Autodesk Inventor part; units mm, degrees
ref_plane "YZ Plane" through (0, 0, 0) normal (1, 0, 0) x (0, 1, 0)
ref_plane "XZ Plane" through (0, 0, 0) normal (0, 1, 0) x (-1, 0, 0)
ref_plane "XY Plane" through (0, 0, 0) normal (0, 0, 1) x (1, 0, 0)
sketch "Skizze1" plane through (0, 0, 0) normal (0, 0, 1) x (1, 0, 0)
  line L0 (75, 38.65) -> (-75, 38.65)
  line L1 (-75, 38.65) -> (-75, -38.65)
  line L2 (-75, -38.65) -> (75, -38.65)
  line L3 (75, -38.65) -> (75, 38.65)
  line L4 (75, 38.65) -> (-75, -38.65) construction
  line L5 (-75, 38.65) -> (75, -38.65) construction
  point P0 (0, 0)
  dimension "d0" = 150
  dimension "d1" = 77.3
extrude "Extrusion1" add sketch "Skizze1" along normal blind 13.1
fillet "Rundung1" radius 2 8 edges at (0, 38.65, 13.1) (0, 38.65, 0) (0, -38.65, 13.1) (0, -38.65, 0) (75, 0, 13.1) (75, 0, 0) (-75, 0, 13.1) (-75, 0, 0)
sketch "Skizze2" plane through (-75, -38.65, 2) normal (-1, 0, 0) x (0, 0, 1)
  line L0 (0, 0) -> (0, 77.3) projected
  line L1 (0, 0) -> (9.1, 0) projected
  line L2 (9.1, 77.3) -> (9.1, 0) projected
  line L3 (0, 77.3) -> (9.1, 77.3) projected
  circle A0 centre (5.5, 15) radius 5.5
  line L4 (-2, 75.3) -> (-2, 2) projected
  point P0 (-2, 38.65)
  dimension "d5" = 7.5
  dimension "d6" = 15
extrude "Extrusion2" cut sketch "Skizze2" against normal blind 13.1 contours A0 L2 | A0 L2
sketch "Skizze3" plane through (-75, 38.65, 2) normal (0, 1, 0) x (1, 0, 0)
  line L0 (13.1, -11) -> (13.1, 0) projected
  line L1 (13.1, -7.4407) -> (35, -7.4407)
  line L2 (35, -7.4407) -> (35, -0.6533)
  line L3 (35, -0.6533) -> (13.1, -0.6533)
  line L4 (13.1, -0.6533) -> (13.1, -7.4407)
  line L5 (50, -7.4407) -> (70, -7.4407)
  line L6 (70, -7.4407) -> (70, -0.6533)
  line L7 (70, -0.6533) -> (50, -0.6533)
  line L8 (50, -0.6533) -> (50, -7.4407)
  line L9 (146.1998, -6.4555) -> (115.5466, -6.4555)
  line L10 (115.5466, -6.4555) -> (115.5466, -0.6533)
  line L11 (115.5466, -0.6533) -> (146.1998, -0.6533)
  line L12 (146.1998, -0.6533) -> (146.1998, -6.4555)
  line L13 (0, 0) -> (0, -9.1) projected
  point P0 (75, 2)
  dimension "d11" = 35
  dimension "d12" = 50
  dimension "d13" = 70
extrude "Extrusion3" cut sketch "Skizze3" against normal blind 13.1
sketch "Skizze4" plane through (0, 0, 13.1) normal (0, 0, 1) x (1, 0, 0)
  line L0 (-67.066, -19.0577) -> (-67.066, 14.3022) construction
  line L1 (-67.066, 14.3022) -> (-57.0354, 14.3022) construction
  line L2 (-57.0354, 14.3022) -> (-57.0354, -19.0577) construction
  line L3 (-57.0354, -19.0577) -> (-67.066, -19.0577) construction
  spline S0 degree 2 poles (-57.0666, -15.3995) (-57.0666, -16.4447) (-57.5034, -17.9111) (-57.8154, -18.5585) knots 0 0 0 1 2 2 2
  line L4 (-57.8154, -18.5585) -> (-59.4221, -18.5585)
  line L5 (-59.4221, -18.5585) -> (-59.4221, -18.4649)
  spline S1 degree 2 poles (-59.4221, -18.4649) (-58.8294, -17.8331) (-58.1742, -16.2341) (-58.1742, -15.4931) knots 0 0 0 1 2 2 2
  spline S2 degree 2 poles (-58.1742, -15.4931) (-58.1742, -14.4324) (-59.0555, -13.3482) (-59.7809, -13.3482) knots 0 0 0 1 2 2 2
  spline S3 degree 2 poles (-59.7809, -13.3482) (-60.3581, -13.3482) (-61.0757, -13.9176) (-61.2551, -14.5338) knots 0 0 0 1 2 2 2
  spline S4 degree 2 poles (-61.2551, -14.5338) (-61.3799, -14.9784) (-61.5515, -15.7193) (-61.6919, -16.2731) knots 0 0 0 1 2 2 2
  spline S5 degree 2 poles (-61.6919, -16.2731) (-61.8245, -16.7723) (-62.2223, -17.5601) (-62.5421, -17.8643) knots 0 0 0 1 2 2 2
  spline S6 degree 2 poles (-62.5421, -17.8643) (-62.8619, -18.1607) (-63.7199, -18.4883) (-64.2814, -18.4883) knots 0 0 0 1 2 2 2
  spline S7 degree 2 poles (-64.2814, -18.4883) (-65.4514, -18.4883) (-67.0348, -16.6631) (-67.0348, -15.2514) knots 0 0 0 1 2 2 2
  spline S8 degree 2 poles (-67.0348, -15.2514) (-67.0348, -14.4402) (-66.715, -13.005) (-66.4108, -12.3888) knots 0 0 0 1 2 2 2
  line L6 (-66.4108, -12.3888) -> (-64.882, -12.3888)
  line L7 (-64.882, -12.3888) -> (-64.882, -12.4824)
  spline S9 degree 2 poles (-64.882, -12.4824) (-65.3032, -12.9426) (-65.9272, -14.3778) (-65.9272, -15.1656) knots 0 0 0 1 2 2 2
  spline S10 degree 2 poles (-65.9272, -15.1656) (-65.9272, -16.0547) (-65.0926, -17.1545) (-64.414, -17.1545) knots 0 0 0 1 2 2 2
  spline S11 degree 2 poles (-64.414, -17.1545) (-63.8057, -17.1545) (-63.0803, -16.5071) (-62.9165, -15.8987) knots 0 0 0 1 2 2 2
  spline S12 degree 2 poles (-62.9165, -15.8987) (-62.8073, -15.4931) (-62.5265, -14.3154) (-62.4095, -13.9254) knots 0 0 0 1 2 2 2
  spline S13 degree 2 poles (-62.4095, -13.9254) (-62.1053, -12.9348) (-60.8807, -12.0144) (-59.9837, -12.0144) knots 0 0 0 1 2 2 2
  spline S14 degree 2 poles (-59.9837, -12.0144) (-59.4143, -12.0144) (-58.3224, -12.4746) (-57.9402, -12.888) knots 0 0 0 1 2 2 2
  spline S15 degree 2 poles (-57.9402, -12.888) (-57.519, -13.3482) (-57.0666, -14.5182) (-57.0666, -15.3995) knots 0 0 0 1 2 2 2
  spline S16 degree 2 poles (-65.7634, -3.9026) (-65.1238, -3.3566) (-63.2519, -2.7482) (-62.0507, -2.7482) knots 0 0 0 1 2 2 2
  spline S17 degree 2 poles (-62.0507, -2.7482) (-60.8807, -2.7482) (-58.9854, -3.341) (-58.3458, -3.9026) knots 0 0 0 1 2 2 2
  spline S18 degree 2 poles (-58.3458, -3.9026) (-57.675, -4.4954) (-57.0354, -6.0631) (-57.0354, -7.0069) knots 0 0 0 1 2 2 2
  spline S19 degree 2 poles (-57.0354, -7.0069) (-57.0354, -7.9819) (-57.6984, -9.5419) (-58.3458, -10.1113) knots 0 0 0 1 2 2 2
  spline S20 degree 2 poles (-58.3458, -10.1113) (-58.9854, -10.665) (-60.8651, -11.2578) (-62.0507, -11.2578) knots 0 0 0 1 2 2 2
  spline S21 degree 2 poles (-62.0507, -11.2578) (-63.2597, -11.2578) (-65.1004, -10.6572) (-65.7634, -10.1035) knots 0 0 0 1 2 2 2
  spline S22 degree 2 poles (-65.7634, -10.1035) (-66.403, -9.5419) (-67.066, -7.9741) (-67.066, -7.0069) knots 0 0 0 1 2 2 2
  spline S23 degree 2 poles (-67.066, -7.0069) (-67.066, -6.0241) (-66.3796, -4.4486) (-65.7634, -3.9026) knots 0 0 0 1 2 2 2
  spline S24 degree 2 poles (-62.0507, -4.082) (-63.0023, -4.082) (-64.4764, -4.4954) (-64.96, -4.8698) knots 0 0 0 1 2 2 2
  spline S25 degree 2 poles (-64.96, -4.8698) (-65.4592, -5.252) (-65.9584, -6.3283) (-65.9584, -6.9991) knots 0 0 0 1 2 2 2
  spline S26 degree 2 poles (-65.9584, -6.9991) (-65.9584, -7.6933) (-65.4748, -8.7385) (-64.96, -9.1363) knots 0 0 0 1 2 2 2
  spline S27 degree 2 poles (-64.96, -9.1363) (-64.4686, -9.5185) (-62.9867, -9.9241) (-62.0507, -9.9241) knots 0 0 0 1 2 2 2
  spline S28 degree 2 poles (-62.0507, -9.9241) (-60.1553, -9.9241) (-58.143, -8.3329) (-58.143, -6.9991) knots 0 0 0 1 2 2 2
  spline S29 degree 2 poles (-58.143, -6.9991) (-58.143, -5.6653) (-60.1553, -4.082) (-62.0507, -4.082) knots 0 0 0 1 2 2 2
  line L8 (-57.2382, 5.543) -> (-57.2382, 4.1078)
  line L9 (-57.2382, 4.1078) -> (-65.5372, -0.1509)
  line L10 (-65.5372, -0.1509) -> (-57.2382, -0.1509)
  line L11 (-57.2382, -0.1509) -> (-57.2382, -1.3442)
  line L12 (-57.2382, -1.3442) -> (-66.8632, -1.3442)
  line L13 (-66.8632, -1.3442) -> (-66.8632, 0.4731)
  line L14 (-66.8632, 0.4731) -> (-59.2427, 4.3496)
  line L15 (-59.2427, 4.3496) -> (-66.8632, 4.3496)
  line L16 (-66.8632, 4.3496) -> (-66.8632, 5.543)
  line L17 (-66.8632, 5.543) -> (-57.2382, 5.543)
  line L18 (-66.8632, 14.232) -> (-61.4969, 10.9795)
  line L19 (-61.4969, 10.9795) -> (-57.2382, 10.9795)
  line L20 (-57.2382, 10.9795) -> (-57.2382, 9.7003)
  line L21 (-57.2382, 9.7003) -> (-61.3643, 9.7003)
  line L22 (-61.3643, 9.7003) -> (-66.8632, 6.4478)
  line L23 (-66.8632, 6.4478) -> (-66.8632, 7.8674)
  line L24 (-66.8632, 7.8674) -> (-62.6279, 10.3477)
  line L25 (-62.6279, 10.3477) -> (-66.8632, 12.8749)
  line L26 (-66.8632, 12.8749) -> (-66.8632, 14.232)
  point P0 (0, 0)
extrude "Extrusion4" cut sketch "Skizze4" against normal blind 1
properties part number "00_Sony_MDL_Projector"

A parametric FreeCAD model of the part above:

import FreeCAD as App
import Part
import Sketcher

V = App.Vector
Q = App.Units.Quantity


def edges_at(feature, points):
    """Names of the edges that pass closest to the given points."""
    edges = feature.Shape.Edges
    near = lambda p: min(range(len(edges)), key=lambda i: edges[i].distToShape(Part.Vertex(*p))[0])
    return sorted({f"Edge{near(p) + 1}" for p in points})

doc = App.newDocument("Part")
params = doc.addObject("Spreadsheet::Sheet", "Params")
for row, (alias, value) in enumerate([
    ("sketch1_width", "150 mm"),
    ("sketch1_height", "77.3 mm"),
    ("pad1_length", "13.1 mm"),
    ("fillet_radius", "2 mm"),
    ("sketch2_diameter", "11 mm"),
    ("pocket1_length", "13.1 mm"),
    ("sketch3_width", "20 mm"),
    ("sketch3_width2", "21.9 mm"),
    ("pocket2_length", "13.1 mm"),
    ("pocket3_length", "1 mm"),
], start=1):
    params.set(f"A{row}", alias)
    params.set(f"B{row}", "=" + value)
    params.setAlias(f"B{row}", alias)

body = doc.addObject("PartDesign::Body", "Body")

sketch1 = body.newObject("Sketcher::SketchObject", "Sketch")
sketch1.AttachmentSupport = (doc.getObject("XY_Plane"), [""])
sketch1.MapMode = "FlatFace"
sketch1.addGeometry([
    Part.LineSegment(V(75, -39, 0), V(75, 39, 0)),
    Part.LineSegment(V(75, 39, 0), V(-75, 39, 0)),
    Part.LineSegment(V(-75, 39, 0), V(-75, -39, 0)),
    Part.LineSegment(V(-75, -39, 0), V(75, -39, 0)),
], False)
sketch1.addConstraint([
    Sketcher.Constraint("Coincident", 0, 2, 1, 1),
    Sketcher.Constraint("Coincident", 1, 2, 2, 1),
    Sketcher.Constraint("Coincident", 2, 2, 3, 1),
    Sketcher.Constraint("Coincident", 3, 2, 0, 1),
    Sketcher.Constraint("Vertical", 0),
    Sketcher.Constraint("Horizontal", 1),
    Sketcher.Constraint("Vertical", 2),
    Sketcher.Constraint("Horizontal", 3),
    Sketcher.Constraint("Symmetric", 0, 2, 2, 2, -1, 1),
    Sketcher.Constraint("DistanceX", 1, 2, 1, 1, 150.0),
    Sketcher.Constraint("DistanceY", 0, 1, 0, 2, 77.3),
])
sketch1.setExpression("Constraints[9]", "Params.sketch1_width")
sketch1.setExpression("Constraints[10]", "Params.sketch1_height")
pad1 = body.newObject("PartDesign::Pad", "Pad")
pad1.Profile = sketch1
pad1.setExpression("Length", "Params.pad1_length")
doc.recompute()

fillet = body.newObject("PartDesign::Fillet", "Fillet")
fillet.Base = (pad1, edges_at(pad1, [
    (0, 38.65, 13.1),
    (0, 38.65, 0),
    (0, -38.65, 13.1),
    (0, -38.65, 0),
    (75, 0, 13.1),
    (75, 0, 0),
    (-75, 0, 13.1),
    (-75, 0, 0),
]))
fillet.setExpression("Radius", "Params.fillet_radius")

sketch2 = body.newObject("Sketcher::SketchObject", "Sketch001")
sketch2.AttachmentSupport = (doc.getObject("YZ_Plane"), [""])
sketch2.MapMode = "FlatFace"
sketch2.AttachmentOffset = App.Placement(V(0, 0, -75), App.Rotation())
sketch2.addGeometry(Part.Circle(V(-24, 8, 0), V(0, 0, 1), 6), False)
sketch2.addConstraint([
    Sketcher.Constraint("Diameter", 0, 11.0),
    Sketcher.Constraint("DistanceY", -1, 1, 0, 3, 7.5),
    Sketcher.Constraint("DistanceX", 0, 3, -1, 1, 23.65),
])
sketch2.setExpression("Constraints[0]", "Params.sketch2_diameter")
pocket1 = body.newObject("PartDesign::Pocket", "Pocket")
pocket1.Profile = sketch2
pocket1.setExpression("Length", "Params.pocket1_length")
pocket1.Reversed = True

sketch3 = body.newObject("Sketcher::SketchObject", "Sketch002")
sketch3.AttachmentSupport = (doc.getObject("XZ_Plane"), [""])
sketch3.MapMode = "FlatFace"
sketch3.AttachmentOffset = App.Placement(V(0, 0, -38.65), App.Rotation())
sketch3.addGeometry([
    Part.LineSegment(V(-62, 3, 0), V(-62, 9, 0)),
    Part.LineSegment(V(-62, 9, 0), V(-40, 9, 0)),
    Part.LineSegment(V(-40, 9, 0), V(-40, 3, 0)),
    Part.LineSegment(V(-40, 3, 0), V(-62, 3, 0)),
    Part.LineSegment(V(-25, 3, 0), V(-25, 9, 0)),
    Part.LineSegment(V(-25, 9, 0), V(-5, 9, 0)),
    Part.LineSegment(V(-5, 9, 0), V(-5, 3, 0)),
    Part.LineSegment(V(-5, 3, 0), V(-25, 3, 0)),
    Part.LineSegment(V(41, 8, 0), V(71, 8, 0)),
    Part.LineSegment(V(71, 8, 0), V(71, 3, 0)),
    Part.LineSegment(V(71, 3, 0), V(41, 3, 0)),
    Part.LineSegment(V(41, 3, 0), V(41, 8, 0)),
], False)
sketch3.addConstraint([
    Sketcher.Constraint("Coincident", 0, 2, 1, 1),
    Sketcher.Constraint("Coincident", 1, 2, 2, 1),
    Sketcher.Constraint("Coincident", 2, 2, 3, 1),
    Sketcher.Constraint("Coincident", 3, 2, 0, 1),
    Sketcher.Constraint("Coincident", 4, 2, 5, 1),
    Sketcher.Constraint("Coincident", 5, 2, 6, 1),
    Sketcher.Constraint("Coincident", 6, 2, 7, 1),
    Sketcher.Constraint("Coincident", 7, 2, 4, 1),
    Sketcher.Constraint("Coincident", 8, 2, 9, 1),
    Sketcher.Constraint("Coincident", 9, 2, 10, 1),
    Sketcher.Constraint("Coincident", 10, 2, 11, 1),
    Sketcher.Constraint("Coincident", 11, 2, 8, 1),
    Sketcher.Constraint("Vertical", 0),
    Sketcher.Constraint("Horizontal", 1),
    Sketcher.Constraint("Vertical", 2),
    Sketcher.Constraint("Horizontal", 3),
    Sketcher.Constraint("Vertical", 4),
    Sketcher.Constraint("Horizontal", 5),
    Sketcher.Constraint("Vertical", 6),
    Sketcher.Constraint("Horizontal", 7),
    Sketcher.Constraint("Horizontal", 8),
    Sketcher.Constraint("Vertical", 9),
    Sketcher.Constraint("Horizontal", 10),
    Sketcher.Constraint("Vertical", 11),
    Sketcher.Constraint("Horizontal", 1, 2, 4, 2),
    Sketcher.Constraint("Horizontal", 3, 2, 6, 2),
    Sketcher.Constraint("Horizontal", 7, 2, 9, 2),
    Sketcher.Constraint("DistanceX", 1, 2, 5, 2, 35.0),
    Sketcher.Constraint("DistanceX", 5, 1, 5, 2, 20.0),
    Sketcher.Constraint("DistanceX", 1, 1, 1, 2, 21.9),
    Sketcher.Constraint("DistanceX", 1, 2, -1, 1, 40.0),
    Sketcher.Constraint("DistanceX", 8, 1, 8, 2, 30.6532),
    Sketcher.Constraint("DistanceY", 0, 1, 0, 2, 6.7874),
    Sketcher.Constraint("DistanceY", 9, 2, 9, 1, 5.8022),
    Sketcher.Constraint("DistanceY", -1, 1, 0, 2, 9.4407),
    Sketcher.Constraint("DistanceX", -1, 1, 8, 2, 71.1998),
])
sketch3.setExpression("Constraints[28]", "Params.sketch3_width")
sketch3.setExpression("Constraints[29]", "Params.sketch3_width2")
pocket2 = body.newObject("PartDesign::Pocket", "Pocket001")
pocket2.Profile = sketch3
pocket2.setExpression("Length", "Params.pocket2_length")
pocket2.Reversed = True

sketch4 = body.newObject("Sketcher::SketchObject", "Sketch003")
sketch4.AttachmentSupport = (doc.getObject("XY_Plane"), [""])
sketch4.MapMode = "FlatFace"
sketch4.AttachmentOffset = App.Placement(V(0, 0, 13.1), App.Rotation())
sketch4.addGeometry([
    Part.BSplineCurve([V(-57.0666, -15.3995, 0), V(-57.0666, -16.4447, 0), V(-57.5034, -17.9111, 0), V(-57.8154, -18.5585, 0)], [3, 1, 3], [0, 1, 2], False, 2, [1, 1, 1, 1], False),
    Part.BSplineCurve([V(-57.9402, -12.888, 0), V(-57.519, -13.3482, 0), V(-57.0666, -14.5182, 0), V(-57.0666, -15.3995, 0)], [3, 1, 3], [0, 1, 2], False, 2, [1, 1, 1, 1], False),
    Part.BSplineCurve([V(-59.9837, -12.0144, 0), V(-59.4143, -12.0144, 0), V(-58.3224, -12.4746, 0), V(-57.9402, -12.888, 0)], [3, 1, 3], [0, 1, 2], False, 2, [1, 1, 1, 1], False),
    Part.BSplineCurve([V(-62.4095, -13.9254, 0), V(-62.1053, -12.9348, 0), V(-60.8807, -12.0144, 0), V(-59.9837, -12.0144, 0)], [3, 1, 3], [0, 1, 2], False, 2, [1, 1, 1, 1], False),
    Part.BSplineCurve([V(-62.9165, -15.8987, 0), V(-62.8073, -15.4931, 0), V(-62.5265, -14.3154, 0), V(-62.4095, -13.9254, 0)], [3, 1, 3], [0, 1, 2], False, 2, [1, 1, 1, 1], False),
    Part.BSplineCurve([V(-64.414, -17.1545, 0), V(-63.8057, -17.1545, 0), V(-63.0803, -16.5071, 0), V(-62.9165, -15.8987, 0)], [3, 1, 3], [0, 1, 2], False, 2, [1, 1, 1, 1], False),
    Part.BSplineCurve([V(-65.9272, -15.1656, 0), V(-65.9272, -16.0547, 0), V(-65.0926, -17.1545, 0), V(-64.414, -17.1545, 0)], [3, 1, 3], [0, 1, 2], False, 2, [1, 1, 1, 1], False),
    Part.BSplineCurve([V(-64.882, -12.4824, 0), V(-65.3032, -12.9426, 0), V(-65.9272, -14.3778, 0), V(-65.9272, -15.1656, 0)], [3, 1, 3], [0, 1, 2], False, 2, [1, 1, 1, 1], False),
    Part.LineSegment(V(-64.882, -12.4824, 0), V(-64.882, -12.3888, 0)),
    Part.LineSegment(V(-64.882, -12.3888, 0), V(-66.4108, -12.3888, 0)),
    Part.BSplineCurve([V(-67.0348, -15.2514, 0), V(-67.0348, -14.4402, 0), V(-66.715, -13.005, 0), V(-66.4108, -12.3888, 0)], [3, 1, 3], [0, 1, 2], False, 2, [1, 1, 1, 1], False),
    Part.BSplineCurve([V(-64.2814, -18.4883, 0), V(-65.4514, -18.4883, 0), V(-67.0348, -16.6631, 0), V(-67.0348, -15.2514, 0)], [3, 1, 3], [0, 1, 2], False, 2, [1, 1, 1, 1], False),
    Part.BSplineCurve([V(-62.5421, -17.8643, 0), V(-62.8619, -18.1607, 0), V(-63.7199, -18.4883, 0), V(-64.2814, -18.4883, 0)], [3, 1, 3], [0, 1, 2], False, 2, [1, 1, 1, 1], False),
    Part.BSplineCurve([V(-61.6919, -16.2731, 0), V(-61.8245, -16.7723, 0), V(-62.2223, -17.5601, 0), V(-62.5421, -17.8643, 0)], [3, 1, 3], [0, 1, 2], False, 2, [1, 1, 1, 1], False),
    Part.BSplineCurve([V(-61.2551, -14.5338, 0), V(-61.3799, -14.9784, 0), V(-61.5515, -15.7193, 0), V(-61.6919, -16.2731, 0)], [3, 1, 3], [0, 1, 2], False, 2, [1, 1, 1, 1], False),
    Part.BSplineCurve([V(-59.7809, -13.3482, 0), V(-60.3581, -13.3482, 0), V(-61.0757, -13.9176, 0), V(-61.2551, -14.5338, 0)], [3, 1, 3], [0, 1, 2], False, 2, [1, 1, 1, 1], False),
    Part.BSplineCurve([V(-58.1742, -15.4931, 0), V(-58.1742, -14.4324, 0), V(-59.0555, -13.3482, 0), V(-59.7809, -13.3482, 0)], [3, 1, 3], [0, 1, 2], False, 2, [1, 1, 1, 1], False),
    Part.BSplineCurve([V(-59.4221, -18.4649, 0), V(-58.8294, -17.8331, 0), V(-58.1742, -16.2341, 0), V(-58.1742, -15.4931, 0)], [3, 1, 3], [0, 1, 2], False, 2, [1, 1, 1, 1], False),
    Part.LineSegment(V(-59.4221, -18.4649, 0), V(-59.4221, -18.5585, 0)),
    Part.LineSegment(V(-59.4221, -18.5585, 0), V(-57.8154, -18.5585, 0)),
    Part.BSplineCurve([V(-65.7634, -3.9026, 0), V(-65.1238, -3.3566, 0), V(-63.2519, -2.7482, 0), V(-62.0507, -2.7482, 0)], [3, 1, 3], [0, 1, 2], False, 2, [1, 1, 1, 1], False),
    Part.BSplineCurve([V(-67.066, -7.0069, 0), V(-67.066, -6.0241, 0), V(-66.3796, -4.4486, 0), V(-65.7634, -3.9026, 0)], [3, 1, 3], [0, 1, 2], False, 2, [1, 1, 1, 1], False),
    Part.BSplineCurve([V(-65.7634, -10.1035, 0), V(-66.403, -9.5419, 0), V(-67.066, -7.9741, 0), V(-67.066, -7.0069, 0)], [3, 1, 3], [0, 1, 2], False, 2, [1, 1, 1, 1], False),
    Part.BSplineCurve([V(-62.0507, -11.2578, 0), V(-63.2597, -11.2578, 0), V(-65.1004, -10.6572, 0), V(-65.7634, -10.1035, 0)], [3, 1, 3], [0, 1, 2], False, 2, [1, 1, 1, 1], False),
    Part.BSplineCurve([V(-58.3458, -10.1113, 0), V(-58.9854, -10.665, 0), V(-60.8651, -11.2578, 0), V(-62.0507, -11.2578, 0)], [3, 1, 3], [0, 1, 2], False, 2, [1, 1, 1, 1], False),
    Part.BSplineCurve([V(-57.0354, -7.0069, 0), V(-57.0354, -7.9819, 0), V(-57.6984, -9.5419, 0), V(-58.3458, -10.1113, 0)], [3, 1, 3], [0, 1, 2], False, 2, [1, 1, 1, 1], False),
    Part.BSplineCurve([V(-58.3458, -3.9026, 0), V(-57.675, -4.4954, 0), V(-57.0354, -6.0631, 0), V(-57.0354, -7.0069, 0)], [3, 1, 3], [0, 1, 2], False, 2, [1, 1, 1, 1], False),
    Part.BSplineCurve([V(-62.0507, -2.7482, 0), V(-60.8807, -2.7482, 0), V(-58.9854, -3.341, 0), V(-58.3458, -3.9026, 0)], [3, 1, 3], [0, 1, 2], False, 2, [1, 1, 1, 1], False),
    Part.BSplineCurve([V(-62.0507, -4.082, 0), V(-63.0023, -4.082, 0), V(-64.4764, -4.4954, 0), V(-64.96, -4.8698, 0)], [3, 1, 3], [0, 1, 2], False, 2, [1, 1, 1, 1], False),
    Part.BSplineCurve([V(-58.143, -6.9991, 0), V(-58.143, -5.6653, 0), V(-60.1553, -4.082, 0), V(-62.0507, -4.082, 0)], [3, 1, 3], [0, 1, 2], False, 2, [1, 1, 1, 1], False),
    Part.BSplineCurve([V(-62.0507, -9.9241, 0), V(-60.1553, -9.9241, 0), V(-58.143, -8.3329, 0), V(-58.143, -6.9991, 0)], [3, 1, 3], [0, 1, 2], False, 2, [1, 1, 1, 1], False),
    Part.BSplineCurve([V(-64.96, -9.1363, 0), V(-64.4686, -9.5185, 0), V(-62.9867, -9.9241, 0), V(-62.0507, -9.9241, 0)], [3, 1, 3], [0, 1, 2], False, 2, [1, 1, 1, 1], False),
    Part.BSplineCurve([V(-65.9584, -6.9991, 0), V(-65.9584, -7.6933, 0), V(-65.4748, -8.7385, 0), V(-64.96, -9.1363, 0)], [3, 1, 3], [0, 1, 2], False, 2, [1, 1, 1, 1], False),
    Part.BSplineCurve([V(-64.96, -4.8698, 0), V(-65.4592, -5.252, 0), V(-65.9584, -6.3283, 0), V(-65.9584, -6.9991, 0)], [3, 1, 3], [0, 1, 2], False, 2, [1, 1, 1, 1], False),
    Part.LineSegment(V(-57.2382, 4.1078, 0), V(-57.2382, 5.543, 0)),
    Part.LineSegment(V(-57.2382, 5.543, 0), V(-66.8632, 5.543, 0)),
    Part.LineSegment(V(-66.8632, 5.543, 0), V(-66.8632, 4.3496, 0)),
    Part.LineSegment(V(-66.8632, 4.3496, 0), V(-59.2427, 4.3496, 0)),
    Part.LineSegment(V(-59.2427, 4.3496, 0), V(-66.8632, 0.4731, 0)),
    Part.LineSegment(V(-66.8632, 0.4731, 0), V(-66.8632, -1.3442, 0)),
    Part.LineSegment(V(-66.8632, -1.3442, 0), V(-57.2382, -1.3442, 0)),
    Part.LineSegment(V(-57.2382, -1.3442, 0), V(-57.2382, -0.1509, 0)),
    Part.LineSegment(V(-57.2382, -0.1509, 0), V(-65.5372, -0.1509, 0)),
    Part.LineSegment(V(-65.5372, -0.1509, 0), V(-57.2382, 4.1078, 0)),
    Part.LineSegment(V(-61.4969, 10.9795, 0), V(-66.8632, 14.232, 0)),
    Part.LineSegment(V(-66.8632, 14.232, 0), V(-66.8632, 12.8749, 0)),
    Part.LineSegment(V(-66.8632, 12.8749, 0), V(-62.6279, 10.3477, 0)),
    Part.LineSegment(V(-62.6279, 10.3477, 0), V(-66.8632, 7.8674, 0)),
    Part.LineSegment(V(-66.8632, 7.8674, 0), V(-66.8632, 6.4478, 0)),
    Part.LineSegment(V(-66.8632, 6.4478, 0), V(-61.3643, 9.7003, 0)),
    Part.LineSegment(V(-61.3643, 9.7003, 0), V(-57.2382, 9.7003, 0)),
    Part.LineSegment(V(-57.2382, 9.7003, 0), V(-57.2382, 10.9795, 0)),
    Part.LineSegment(V(-57.2382, 10.9795, 0), V(-61.4969, 10.9795, 0)),
], False)
sketch4.addConstraint([
    Sketcher.Constraint("Block", 0),
    Sketcher.Constraint("Block", 1),
    Sketcher.Constraint("Block", 2),
    Sketcher.Constraint("Block", 3),
    Sketcher.Constraint("Block", 4),
    Sketcher.Constraint("Block", 5),
    Sketcher.Constraint("Block", 6),
    Sketcher.Constraint("Block", 7),
    Sketcher.Constraint("Block", 10),
    Sketcher.Constraint("Block", 11),
    Sketcher.Constraint("Block", 12),
    Sketcher.Constraint("Block", 13),
    Sketcher.Constraint("Block", 14),
    Sketcher.Constraint("Block", 15),
    Sketcher.Constraint("Block", 16),
    Sketcher.Constraint("Block", 17),
    Sketcher.Constraint("Block", 20),
    Sketcher.Constraint("Block", 21),
    Sketcher.Constraint("Block", 22),
    Sketcher.Constraint("Block", 23),
    Sketcher.Constraint("Block", 24),
    Sketcher.Constraint("Block", 25),
    Sketcher.Constraint("Block", 26),
    Sketcher.Constraint("Block", 27),
    Sketcher.Constraint("Block", 28),
    Sketcher.Constraint("Block", 29),
    Sketcher.Constraint("Block", 30),
    Sketcher.Constraint("Block", 31),
    Sketcher.Constraint("Block", 32),
    Sketcher.Constraint("Block", 33),
    Sketcher.Constraint("Coincident", 7, 1, 8, 1),
    Sketcher.Constraint("Coincident", 8, 2, 9, 1),
    Sketcher.Constraint("Coincident", 9, 2, 10, 2),
    Sketcher.Constraint("Coincident", 17, 1, 18, 1),
    Sketcher.Constraint("Coincident", 18, 2, 19, 1),
    Sketcher.Constraint("Coincident", 19, 2, 0, 2),
    Sketcher.Constraint("Coincident", 34, 2, 35, 1),
    Sketcher.Constraint("Coincident", 35, 2, 36, 1),
    Sketcher.Constraint("Coincident", 36, 2, 37, 1),
    Sketcher.Constraint("Coincident", 37, 2, 38, 1),
    Sketcher.Constraint("Coincident", 38, 2, 39, 1),
    Sketcher.Constraint("Coincident", 39, 2, 40, 1),
    Sketcher.Constraint("Coincident", 40, 2, 41, 1),
    Sketcher.Constraint("Coincident", 41, 2, 42, 1),
    Sketcher.Constraint("Coincident", 42, 2, 43, 1),
    Sketcher.Constraint("Coincident", 43, 2, 34, 1),
    Sketcher.Constraint("Coincident", 44, 2, 45, 1),
    Sketcher.Constraint("Coincident", 45, 2, 46, 1),
    Sketcher.Constraint("Coincident", 46, 2, 47, 1),
    Sketcher.Constraint("Coincident", 47, 2, 48, 1),
    Sketcher.Constraint("Coincident", 48, 2, 49, 1),
    Sketcher.Constraint("Coincident", 49, 2, 50, 1),
    Sketcher.Constraint("Coincident", 50, 2, 51, 1),
    Sketcher.Constraint("Coincident", 51, 2, 52, 1),
    Sketcher.Constraint("Coincident", 52, 2, 44, 1),
    Sketcher.Constraint("Vertical", 8),
    Sketcher.Constraint("Horizontal", 9),
    Sketcher.Constraint("Vertical", 18),
    Sketcher.Constraint("Horizontal", 19),
    Sketcher.Constraint("Vertical", 34),
    Sketcher.Constraint("Horizontal", 35),
    Sketcher.Constraint("Vertical", 36),
    Sketcher.Constraint("Horizontal", 37),
    Sketcher.Constraint("Vertical", 39),
    Sketcher.Constraint("Horizontal", 40),
    Sketcher.Constraint("Vertical", 41),
    Sketcher.Constraint("Horizontal", 42),
    Sketcher.Constraint("Vertical", 45),
    Sketcher.Constraint("Vertical", 48),
    Sketcher.Constraint("Horizontal", 50),
    Sketcher.Constraint("Vertical", 51),
    Sketcher.Constraint("Horizontal", 52),
    Sketcher.Constraint("Vertical", 36, 2, 38, 2),
    Sketcher.Constraint("Vertical", 34, 2, 40, 2),
    Sketcher.Constraint("Vertical", 39, 2, 44, 2),
    Sketcher.Constraint("Vertical", 45, 2, 47, 2),
    Sketcher.Constraint("Vertical", 43, 2, 50, 2),
    Sketcher.Constraint("Equal", 36, 41),
    Sketcher.Constraint("Angle", 44, Q("148.78 deg")),
    Sketcher.Constraint("DistanceY", 48, 2, 46, 2, 3.9),
    Sketcher.Constraint("DistanceX", 35, 2, 35, 1, 9.625),
    Sketcher.Constraint("DistanceX", 42, 2, 42, 1, 8.299),
    Sketcher.Constraint("DistanceX", 50, 1, 50, 2, 4.126),
    Sketcher.Constraint("DistanceY", 45, 2, 45, 1, 1.357),
    Sketcher.Constraint("DistanceY", 38, 2, 35, 2, 5.07),
    Sketcher.Constraint("Distance", 43, 9.328),
    Sketcher.Constraint("Distance", 44, 6.275),
    Sketcher.Constraint("Distance", 46, 4.932),
    Sketcher.Constraint("DistanceX", 37, 1, 37, 2, 7.6205),
    Sketcher.Constraint("DistanceY", 34, 1, 34, 2, 1.4352),
    Sketcher.Constraint("DistanceY", 36, 2, 36, 1, 1.1934),
    Sketcher.Constraint("DistanceY", 48, 2, 48, 1, 1.4196),
    Sketcher.Constraint("DistanceY", 51, 1, 51, 2, 1.2792),
    Sketcher.Constraint("DistanceY", -1, 1, 34, 2, 5.543),
    Sketcher.Constraint("DistanceY", -1, 1, 44, 2, 14.232),
    Sketcher.Constraint("DistanceX", 46, 2, -1, 1, 62.628),
    Sketcher.Constraint("DistanceX", 52, 2, -1, 1, 61.497),
])
pocket3 = body.newObject("PartDesign::Pocket", "Pocket002")
pocket3.Profile = sketch4
pocket3.setExpression("Length", "Params.pocket3_length")

doc.recompute()
